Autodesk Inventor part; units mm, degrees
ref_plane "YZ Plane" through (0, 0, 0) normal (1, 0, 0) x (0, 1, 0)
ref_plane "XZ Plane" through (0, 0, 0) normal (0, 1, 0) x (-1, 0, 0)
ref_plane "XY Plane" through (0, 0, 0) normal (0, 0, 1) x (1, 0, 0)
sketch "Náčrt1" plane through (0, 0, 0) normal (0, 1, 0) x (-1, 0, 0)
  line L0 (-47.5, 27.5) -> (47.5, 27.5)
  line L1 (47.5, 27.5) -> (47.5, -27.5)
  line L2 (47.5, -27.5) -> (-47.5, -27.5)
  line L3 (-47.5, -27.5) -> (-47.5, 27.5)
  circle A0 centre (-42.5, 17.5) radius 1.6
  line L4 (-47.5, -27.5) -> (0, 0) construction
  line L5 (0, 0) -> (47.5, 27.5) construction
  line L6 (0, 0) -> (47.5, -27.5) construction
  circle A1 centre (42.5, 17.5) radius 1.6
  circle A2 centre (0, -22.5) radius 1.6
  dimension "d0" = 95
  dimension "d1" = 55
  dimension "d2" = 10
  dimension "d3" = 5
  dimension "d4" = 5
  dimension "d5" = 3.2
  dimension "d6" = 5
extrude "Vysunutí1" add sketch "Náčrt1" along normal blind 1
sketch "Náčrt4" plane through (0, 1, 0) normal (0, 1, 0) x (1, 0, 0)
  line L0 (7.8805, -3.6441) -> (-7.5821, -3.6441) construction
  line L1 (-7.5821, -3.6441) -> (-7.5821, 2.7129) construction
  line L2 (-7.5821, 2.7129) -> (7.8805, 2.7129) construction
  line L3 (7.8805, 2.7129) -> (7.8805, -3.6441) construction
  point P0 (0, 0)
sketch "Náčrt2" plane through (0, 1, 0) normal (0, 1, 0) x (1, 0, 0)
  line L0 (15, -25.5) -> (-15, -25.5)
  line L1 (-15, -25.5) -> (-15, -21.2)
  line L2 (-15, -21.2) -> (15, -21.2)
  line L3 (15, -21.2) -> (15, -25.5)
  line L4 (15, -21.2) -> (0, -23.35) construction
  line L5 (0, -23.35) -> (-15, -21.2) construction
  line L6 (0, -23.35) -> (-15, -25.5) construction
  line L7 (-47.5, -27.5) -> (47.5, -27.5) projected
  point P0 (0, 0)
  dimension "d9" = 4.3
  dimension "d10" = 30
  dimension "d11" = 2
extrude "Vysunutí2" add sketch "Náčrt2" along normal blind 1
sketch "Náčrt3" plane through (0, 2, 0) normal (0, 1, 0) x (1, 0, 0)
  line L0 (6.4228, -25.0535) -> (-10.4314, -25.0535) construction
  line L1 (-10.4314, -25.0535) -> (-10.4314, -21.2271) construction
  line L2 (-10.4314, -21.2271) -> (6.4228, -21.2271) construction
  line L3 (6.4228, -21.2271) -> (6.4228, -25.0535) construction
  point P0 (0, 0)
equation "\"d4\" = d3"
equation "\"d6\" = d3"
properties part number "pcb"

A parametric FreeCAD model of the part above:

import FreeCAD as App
import Part
import Sketcher

V = App.Vector

doc = App.newDocument("Part")
body = doc.addObject("PartDesign::Body", "Body")

sketch1 = body.newObject("Sketcher::SketchObject", "Sketch")
sketch1.AttachmentSupport = (doc.getObject("XZ_Plane"), [""])
sketch1.MapMode = "FlatFace"
sketch1.addGeometry([
    Part.LineSegment(V(-47.5, 27.5, 0), V(47.5, 27.5, 0)),
    Part.LineSegment(V(47.5, 27.5, 0), V(47.5, -27.5, 0)),
    Part.LineSegment(V(47.5, -27.5, 0), V(-47.5, -27.5, 0)),
    Part.LineSegment(V(-47.5, -27.5, 0), V(-47.5, 27.5, 0)),
    Part.Circle(V(0, -22.5, 0), V(0, 0, 1), 1.6),
    Part.Circle(V(42.5, 17.5, 0), V(0, 0, 1), 1.6),
    Part.Circle(V(-42.5, 17.5, 0), V(0, 0, 1), 1.6),
], False)
sketch1.addConstraint([
    Sketcher.Constraint("Coincident", 0, 2, 1, 1),
    Sketcher.Constraint("Coincident", 1, 2, 2, 1),
    Sketcher.Constraint("Coincident", 2, 2, 3, 1),
    Sketcher.Constraint("Coincident", 3, 2, 0, 1),
    Sketcher.Constraint("Horizontal", 0),
    Sketcher.Constraint("Vertical", 1),
    Sketcher.Constraint("Horizontal", 2),
    Sketcher.Constraint("Vertical", 3),
    Sketcher.Constraint("Equal", 4, 5),
    Sketcher.Constraint("Equal", 5, 6),
    Sketcher.Constraint("Symmetric", 0, 2, 2, 2, -1, 1),
    Sketcher.Constraint("Symmetric", 5, 3, 6, 3, -2),
    Sketcher.Constraint("PointOnObject", 4, 3, -2),
    Sketcher.Constraint("Diameter", 4, 3.2),
    Sketcher.Constraint("DistanceX", 0, 1, 0, 2, 95.0),
    Sketcher.Constraint("DistanceY", 1, 2, 1, 1, 55.0),
    Sketcher.Constraint("DistanceX", 5, 3, 0, 2, 5.0),
    Sketcher.Constraint("DistanceY", 5, 3, 0, 2, 10.0),
    Sketcher.Constraint("DistanceY", 1, 2, 4, 3, 5.0),
])
pad1 = body.newObject("PartDesign::Pad", "Pad")
pad1.Profile = sketch1
pad1.Length = 1
pad1.Reversed = True

sketch2 = body.newObject("Sketcher::SketchObject", "Sketch001")
sketch2.AttachmentSupport = (doc.getObject("XZ_Plane"), [""])
sketch2.MapMode = "FlatFace"
sketch2.AttachmentOffset = App.Placement(V(0, 0, -1), App.Rotation())
sketch2.addGeometry([
    Part.LineSegment(V(-15, 25.5, 0), V(15, 25.5, 0)),
    Part.LineSegment(V(15, 25.5, 0), V(15, 21.2, 0)),
    Part.LineSegment(V(15, 21.2, 0), V(-15, 21.2, 0)),
    Part.LineSegment(V(-15, 21.2, 0), V(-15, 25.5, 0)),
], False)
sketch2.addConstraint([
    Sketcher.Constraint("Coincident", 0, 2, 1, 1),
    Sketcher.Constraint("Coincident", 1, 2, 2, 1),
    Sketcher.Constraint("Coincident", 2, 2, 3, 1),
    Sketcher.Constraint("Coincident", 3, 2, 0, 1),
    Sketcher.Constraint("Horizontal", 0),
    Sketcher.Constraint("Vertical", 1),
    Sketcher.Constraint("Horizontal", 2),
    Sketcher.Constraint("Vertical", 3),
    Sketcher.Constraint("DistanceX", 0, 1, 0, 2, 30.0),
    Sketcher.Constraint("DistanceY", 1, 2, 1, 1, 4.3),
    Sketcher.Constraint("DistanceX", -1, 1, 0, 2, 15.0),
    Sketcher.Constraint("DistanceY", -1, 1, 0, 2, 25.5),
])
pad2 = body.newObject("PartDesign::Pad", "Pad001")
pad2.Profile = sketch2
pad2.Length = 1
pad2.Reversed = True

doc.recompute()
